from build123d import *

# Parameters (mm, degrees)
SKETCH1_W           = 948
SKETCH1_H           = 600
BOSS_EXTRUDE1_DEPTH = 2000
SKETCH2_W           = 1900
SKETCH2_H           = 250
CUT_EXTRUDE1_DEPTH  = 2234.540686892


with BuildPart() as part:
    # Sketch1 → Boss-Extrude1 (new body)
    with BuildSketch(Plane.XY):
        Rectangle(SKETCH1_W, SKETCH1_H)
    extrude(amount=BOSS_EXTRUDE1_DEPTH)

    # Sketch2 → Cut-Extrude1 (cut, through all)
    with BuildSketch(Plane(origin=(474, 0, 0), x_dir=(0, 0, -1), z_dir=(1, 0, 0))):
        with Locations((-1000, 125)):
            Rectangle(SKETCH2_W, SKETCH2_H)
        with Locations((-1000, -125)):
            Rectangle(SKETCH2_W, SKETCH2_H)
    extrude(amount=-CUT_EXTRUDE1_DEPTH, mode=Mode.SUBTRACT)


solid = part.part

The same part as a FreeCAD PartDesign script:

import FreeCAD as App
import Part
import Sketcher


def add_polygon(sketch, points):
    """Adds a closed chain of lines whose ends are joined by coincident constraints."""
    first, n = sketch.GeometryCount, len(points)
    for a, b in zip(points, points[1:] + points[:1]):
        sketch.addGeometry(Part.LineSegment(App.Vector(*a, 0), App.Vector(*b, 0)), False)
    for i in range(n):
        sketch.addConstraint(Sketcher.Constraint("Coincident", first + i, 2, first + (i + 1) % n, 1))

doc = App.newDocument("Part")
body = doc.addObject("PartDesign::Body", "Body")

# Sketch on XY plane
sketch1 = body.newObject("Sketcher::SketchObject", "Sketch")
sketch1.AttachmentSupport = (doc.getObject("XY_Plane"), [""])
sketch1.MapMode = "FlatFace"
add_polygon(sketch1, [(-474, 300), (-474, -300), (474, -300), (474, 300)])  # lines 0-3
sketch1.addConstraint([
    Sketcher.Constraint("Vertical", 0),
    Sketcher.Constraint("Horizontal", 1),
    Sketcher.Constraint("Vertical", 2),
    Sketcher.Constraint("Horizontal", 3),
    Sketcher.Constraint("Symmetric", 0, 2, 2, 2, -1, 1),
    Sketcher.Constraint("DistanceX", 1, 1, 1, 2, 948.0),
    Sketcher.Constraint("DistanceY", 0, 2, 0, 1, 600.0),
])
pad1 = body.newObject("PartDesign::Pad", "Pad")
pad1.Profile = sketch1
pad1.Length = 2000

# Sketch on YZ plane
sketch2 = body.newObject("Sketcher::SketchObject", "Sketch001")
sketch2.AttachmentSupport = (doc.getObject("YZ_Plane"), [""])
sketch2.MapMode = "FlatFace"
sketch2.AttachmentOffset = App.Placement(App.Vector(0, 0, 474), App.Rotation())
add_polygon(sketch2, [(250, 1950), (-250, 1950), (-250, 50), (250, 50)])  # lines 0-3
sketch2.addConstraint([
    Sketcher.Constraint("Horizontal", 0),
    Sketcher.Constraint("Vertical", 1),
    Sketcher.Constraint("Horizontal", 2),
    Sketcher.Constraint("Vertical", 3),
    Sketcher.Constraint("DistanceX", 0, 2, 0, 1, 500.0),
    Sketcher.Constraint("DistanceY", 1, 2, 1, 1, 1900.0),
    Sketcher.Constraint("DistanceX", 0, 2, -1, 1, 250.0),
    Sketcher.Constraint("DistanceY", -1, 1, 0, 2, 1950.0),
])
pocket1 = body.newObject("PartDesign::Pocket", "Pocket")
pocket1.Profile = sketch2
pocket1.Type = "ThroughAll"

doc.recompute()
